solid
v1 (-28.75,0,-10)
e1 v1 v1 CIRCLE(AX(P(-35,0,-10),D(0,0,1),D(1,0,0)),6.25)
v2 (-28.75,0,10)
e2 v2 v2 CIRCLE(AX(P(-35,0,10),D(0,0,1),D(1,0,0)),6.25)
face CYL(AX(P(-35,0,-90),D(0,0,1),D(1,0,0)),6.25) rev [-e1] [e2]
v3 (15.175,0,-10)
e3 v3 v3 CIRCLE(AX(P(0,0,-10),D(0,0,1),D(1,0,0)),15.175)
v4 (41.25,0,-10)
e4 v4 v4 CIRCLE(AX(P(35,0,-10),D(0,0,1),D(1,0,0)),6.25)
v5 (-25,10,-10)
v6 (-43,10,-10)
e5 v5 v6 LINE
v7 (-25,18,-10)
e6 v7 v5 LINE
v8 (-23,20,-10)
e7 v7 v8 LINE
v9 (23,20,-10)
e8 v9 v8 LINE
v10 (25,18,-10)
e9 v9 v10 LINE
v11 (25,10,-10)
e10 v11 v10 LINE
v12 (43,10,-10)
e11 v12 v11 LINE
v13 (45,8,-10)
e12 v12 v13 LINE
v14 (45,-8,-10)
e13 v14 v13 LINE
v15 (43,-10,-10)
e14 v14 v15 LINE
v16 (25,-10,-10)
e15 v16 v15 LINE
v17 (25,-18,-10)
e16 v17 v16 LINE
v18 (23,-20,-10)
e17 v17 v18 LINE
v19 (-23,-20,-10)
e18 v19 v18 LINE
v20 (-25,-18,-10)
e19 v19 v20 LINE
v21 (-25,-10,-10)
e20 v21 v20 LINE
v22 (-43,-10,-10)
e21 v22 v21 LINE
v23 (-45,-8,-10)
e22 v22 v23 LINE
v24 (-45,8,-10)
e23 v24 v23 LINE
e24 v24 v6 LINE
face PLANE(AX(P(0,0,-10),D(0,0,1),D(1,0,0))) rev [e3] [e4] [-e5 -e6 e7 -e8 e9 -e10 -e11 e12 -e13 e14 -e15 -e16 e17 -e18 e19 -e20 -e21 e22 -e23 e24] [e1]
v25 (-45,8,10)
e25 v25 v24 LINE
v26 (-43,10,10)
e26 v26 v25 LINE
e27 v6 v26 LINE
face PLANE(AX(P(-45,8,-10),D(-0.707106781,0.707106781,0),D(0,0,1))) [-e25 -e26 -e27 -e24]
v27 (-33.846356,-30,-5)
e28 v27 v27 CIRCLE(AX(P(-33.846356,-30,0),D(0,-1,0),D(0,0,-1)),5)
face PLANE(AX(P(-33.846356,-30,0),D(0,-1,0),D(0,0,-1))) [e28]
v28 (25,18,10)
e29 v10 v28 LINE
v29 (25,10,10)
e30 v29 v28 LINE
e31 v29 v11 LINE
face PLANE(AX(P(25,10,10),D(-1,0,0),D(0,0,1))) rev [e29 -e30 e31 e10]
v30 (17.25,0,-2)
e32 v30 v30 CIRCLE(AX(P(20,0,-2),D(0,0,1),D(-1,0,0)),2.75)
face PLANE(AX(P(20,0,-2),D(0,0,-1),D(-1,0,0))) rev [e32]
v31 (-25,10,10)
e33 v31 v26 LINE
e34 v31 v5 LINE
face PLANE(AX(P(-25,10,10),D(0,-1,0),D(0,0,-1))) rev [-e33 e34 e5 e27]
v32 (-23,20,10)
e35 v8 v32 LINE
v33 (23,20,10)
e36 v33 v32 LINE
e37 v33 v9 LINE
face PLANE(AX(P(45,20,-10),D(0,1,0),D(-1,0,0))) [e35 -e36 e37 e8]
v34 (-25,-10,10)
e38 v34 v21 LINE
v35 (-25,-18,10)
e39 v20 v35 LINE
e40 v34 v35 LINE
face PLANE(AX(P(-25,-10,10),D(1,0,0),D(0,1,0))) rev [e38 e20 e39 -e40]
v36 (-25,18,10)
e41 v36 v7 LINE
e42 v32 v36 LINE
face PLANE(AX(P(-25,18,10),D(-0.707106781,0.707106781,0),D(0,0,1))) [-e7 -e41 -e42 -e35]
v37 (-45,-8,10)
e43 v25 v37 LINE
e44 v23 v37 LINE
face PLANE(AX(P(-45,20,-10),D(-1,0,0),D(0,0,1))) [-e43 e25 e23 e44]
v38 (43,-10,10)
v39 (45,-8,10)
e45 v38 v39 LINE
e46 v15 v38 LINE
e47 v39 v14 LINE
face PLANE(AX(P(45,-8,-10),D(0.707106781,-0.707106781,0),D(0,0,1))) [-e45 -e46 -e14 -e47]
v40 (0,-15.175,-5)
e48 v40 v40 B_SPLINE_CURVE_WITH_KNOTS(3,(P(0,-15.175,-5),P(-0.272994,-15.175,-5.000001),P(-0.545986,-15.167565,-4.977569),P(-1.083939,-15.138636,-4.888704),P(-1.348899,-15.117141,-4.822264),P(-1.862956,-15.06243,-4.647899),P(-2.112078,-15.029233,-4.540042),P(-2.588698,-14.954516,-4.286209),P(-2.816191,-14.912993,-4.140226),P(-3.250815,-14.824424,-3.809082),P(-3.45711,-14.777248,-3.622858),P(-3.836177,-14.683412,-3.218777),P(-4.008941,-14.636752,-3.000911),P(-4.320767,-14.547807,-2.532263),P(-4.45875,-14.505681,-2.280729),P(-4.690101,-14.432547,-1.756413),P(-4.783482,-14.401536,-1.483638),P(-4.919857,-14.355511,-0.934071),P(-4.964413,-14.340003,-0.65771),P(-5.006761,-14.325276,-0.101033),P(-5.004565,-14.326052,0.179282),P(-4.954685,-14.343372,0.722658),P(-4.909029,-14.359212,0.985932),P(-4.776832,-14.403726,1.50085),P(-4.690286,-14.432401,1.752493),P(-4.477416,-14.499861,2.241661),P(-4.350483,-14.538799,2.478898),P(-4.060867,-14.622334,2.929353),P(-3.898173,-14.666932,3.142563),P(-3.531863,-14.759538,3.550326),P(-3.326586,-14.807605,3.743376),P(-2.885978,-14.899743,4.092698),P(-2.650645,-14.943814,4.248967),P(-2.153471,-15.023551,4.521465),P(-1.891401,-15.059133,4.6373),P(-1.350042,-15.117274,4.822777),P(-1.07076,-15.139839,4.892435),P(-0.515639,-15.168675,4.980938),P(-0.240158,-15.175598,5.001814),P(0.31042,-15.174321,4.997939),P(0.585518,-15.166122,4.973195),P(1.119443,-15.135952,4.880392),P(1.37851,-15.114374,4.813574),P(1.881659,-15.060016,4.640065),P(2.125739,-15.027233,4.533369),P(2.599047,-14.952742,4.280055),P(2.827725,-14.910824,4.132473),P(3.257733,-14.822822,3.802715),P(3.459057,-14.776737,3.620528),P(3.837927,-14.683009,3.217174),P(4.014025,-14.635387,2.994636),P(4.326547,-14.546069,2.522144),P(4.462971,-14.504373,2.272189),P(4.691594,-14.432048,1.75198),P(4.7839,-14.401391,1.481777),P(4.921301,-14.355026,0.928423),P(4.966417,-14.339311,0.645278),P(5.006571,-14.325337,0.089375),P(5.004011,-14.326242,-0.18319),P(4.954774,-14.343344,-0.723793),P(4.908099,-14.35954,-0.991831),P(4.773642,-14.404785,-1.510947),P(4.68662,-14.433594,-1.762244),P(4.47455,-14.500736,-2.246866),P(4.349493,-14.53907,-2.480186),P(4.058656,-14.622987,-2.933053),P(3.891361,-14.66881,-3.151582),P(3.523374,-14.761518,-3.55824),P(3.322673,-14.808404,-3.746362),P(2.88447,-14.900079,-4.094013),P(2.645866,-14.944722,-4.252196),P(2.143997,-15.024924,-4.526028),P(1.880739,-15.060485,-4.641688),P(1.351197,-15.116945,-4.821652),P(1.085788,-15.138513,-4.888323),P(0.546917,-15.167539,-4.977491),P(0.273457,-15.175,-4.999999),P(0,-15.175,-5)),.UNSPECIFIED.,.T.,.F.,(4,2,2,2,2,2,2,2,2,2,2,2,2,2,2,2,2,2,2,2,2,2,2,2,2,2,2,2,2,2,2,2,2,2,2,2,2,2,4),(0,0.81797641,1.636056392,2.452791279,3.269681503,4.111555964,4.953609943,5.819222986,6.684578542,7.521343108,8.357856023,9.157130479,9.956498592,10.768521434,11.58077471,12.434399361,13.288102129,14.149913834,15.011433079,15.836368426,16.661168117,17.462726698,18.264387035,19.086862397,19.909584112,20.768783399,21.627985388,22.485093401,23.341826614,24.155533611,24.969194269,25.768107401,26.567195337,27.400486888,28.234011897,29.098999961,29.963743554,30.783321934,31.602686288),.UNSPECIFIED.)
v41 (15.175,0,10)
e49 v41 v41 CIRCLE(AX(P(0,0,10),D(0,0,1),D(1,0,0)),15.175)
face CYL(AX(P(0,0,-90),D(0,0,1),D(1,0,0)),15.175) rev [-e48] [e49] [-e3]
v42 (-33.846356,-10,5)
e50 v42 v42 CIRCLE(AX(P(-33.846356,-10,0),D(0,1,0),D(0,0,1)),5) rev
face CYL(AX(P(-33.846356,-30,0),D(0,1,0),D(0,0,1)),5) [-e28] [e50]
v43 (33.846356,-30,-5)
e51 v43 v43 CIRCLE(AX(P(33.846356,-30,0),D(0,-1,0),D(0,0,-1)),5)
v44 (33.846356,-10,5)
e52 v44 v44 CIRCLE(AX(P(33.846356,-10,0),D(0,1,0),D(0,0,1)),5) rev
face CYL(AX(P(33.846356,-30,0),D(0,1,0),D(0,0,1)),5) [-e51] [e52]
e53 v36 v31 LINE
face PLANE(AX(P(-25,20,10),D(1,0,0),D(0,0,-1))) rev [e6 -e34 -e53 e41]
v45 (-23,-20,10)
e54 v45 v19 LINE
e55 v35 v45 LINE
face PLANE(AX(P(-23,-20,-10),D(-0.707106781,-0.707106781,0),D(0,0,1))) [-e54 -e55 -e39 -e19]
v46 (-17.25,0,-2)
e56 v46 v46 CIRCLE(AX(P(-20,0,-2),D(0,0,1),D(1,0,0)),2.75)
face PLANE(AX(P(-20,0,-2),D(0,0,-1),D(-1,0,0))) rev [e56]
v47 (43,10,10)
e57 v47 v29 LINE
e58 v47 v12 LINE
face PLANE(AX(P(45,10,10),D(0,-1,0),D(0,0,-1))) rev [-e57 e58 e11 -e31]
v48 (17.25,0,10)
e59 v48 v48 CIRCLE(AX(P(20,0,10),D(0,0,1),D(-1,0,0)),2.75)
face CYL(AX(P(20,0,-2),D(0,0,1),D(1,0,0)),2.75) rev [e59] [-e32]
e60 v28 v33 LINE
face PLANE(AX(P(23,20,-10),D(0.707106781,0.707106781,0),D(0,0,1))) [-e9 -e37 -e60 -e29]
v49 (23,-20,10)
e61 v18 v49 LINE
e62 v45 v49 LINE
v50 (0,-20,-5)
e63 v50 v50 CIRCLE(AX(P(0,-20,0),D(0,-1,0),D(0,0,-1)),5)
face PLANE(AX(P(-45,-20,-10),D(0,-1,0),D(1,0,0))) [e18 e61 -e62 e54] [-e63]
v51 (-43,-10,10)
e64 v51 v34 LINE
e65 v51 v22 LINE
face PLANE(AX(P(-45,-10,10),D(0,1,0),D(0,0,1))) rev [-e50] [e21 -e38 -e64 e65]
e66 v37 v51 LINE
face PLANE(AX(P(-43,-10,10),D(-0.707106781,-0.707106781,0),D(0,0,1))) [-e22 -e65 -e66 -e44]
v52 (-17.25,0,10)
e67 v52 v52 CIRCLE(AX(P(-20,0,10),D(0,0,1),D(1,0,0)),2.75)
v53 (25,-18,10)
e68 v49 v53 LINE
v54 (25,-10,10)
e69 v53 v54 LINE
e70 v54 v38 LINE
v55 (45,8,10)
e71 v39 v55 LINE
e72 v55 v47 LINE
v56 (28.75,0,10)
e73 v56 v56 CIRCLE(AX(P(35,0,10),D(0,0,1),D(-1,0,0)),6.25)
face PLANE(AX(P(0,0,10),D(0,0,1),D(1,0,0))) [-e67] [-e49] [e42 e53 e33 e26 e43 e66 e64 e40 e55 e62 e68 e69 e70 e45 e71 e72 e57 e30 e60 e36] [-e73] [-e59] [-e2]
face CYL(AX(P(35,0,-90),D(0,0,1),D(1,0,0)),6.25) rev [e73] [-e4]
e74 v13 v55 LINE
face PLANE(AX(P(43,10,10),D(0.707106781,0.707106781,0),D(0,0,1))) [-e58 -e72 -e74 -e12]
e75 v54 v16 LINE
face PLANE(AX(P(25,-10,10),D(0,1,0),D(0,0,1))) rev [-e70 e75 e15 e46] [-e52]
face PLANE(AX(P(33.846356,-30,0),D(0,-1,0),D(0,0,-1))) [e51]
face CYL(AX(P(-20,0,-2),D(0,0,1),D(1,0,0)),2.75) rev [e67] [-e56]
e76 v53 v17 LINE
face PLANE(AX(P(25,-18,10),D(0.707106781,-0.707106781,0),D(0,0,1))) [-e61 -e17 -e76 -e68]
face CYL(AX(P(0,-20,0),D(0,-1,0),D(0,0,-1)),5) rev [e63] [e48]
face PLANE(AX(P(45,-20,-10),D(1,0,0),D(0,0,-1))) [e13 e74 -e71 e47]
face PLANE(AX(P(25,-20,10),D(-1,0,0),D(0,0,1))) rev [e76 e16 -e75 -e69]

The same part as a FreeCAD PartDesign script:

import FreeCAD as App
import Part
import Sketcher

V = App.Vector


def edges_at(feature, points):
    """Names of the edges that pass closest to the given points."""
    edges = feature.Shape.Edges
    near = lambda p: min(range(len(edges)), key=lambda i: edges[i].distToShape(Part.Vertex(*p))[0])
    return sorted({f"Edge{near(p) + 1}" for p in points})

doc = App.newDocument("Part")
body = doc.addObject("PartDesign::Body", "Body")

sketch1 = body.newObject("Sketcher::SketchObject", "Sketch")
sketch1.AttachmentSupport = (doc.getObject("XY_Plane"), [""])
sketch1.MapMode = "FlatFace"
sketch1.AttachmentOffset = App.Placement(V(0, 0, 10), App.Rotation())
sketch1.addGeometry([
    Part.LineSegment(V(-45, 20, 0), V(-45, -20, 0)),
    Part.LineSegment(V(-45, -20, 0), V(45, -20, 0)),
    Part.LineSegment(V(45, -20, 0), V(45, 20, 0)),
    Part.LineSegment(V(45, 20, 0), V(-45, 20, 0)),
], False)
sketch1.addConstraint([
    Sketcher.Constraint("Coincident", 0, 2, 1, 1),
    Sketcher.Constraint("Coincident", 1, 2, 2, 1),
    Sketcher.Constraint("Coincident", 2, 2, 3, 1),
    Sketcher.Constraint("Coincident", 3, 2, 0, 1),
    Sketcher.Constraint("Vertical", 0),
    Sketcher.Constraint("Horizontal", 1),
    Sketcher.Constraint("Vertical", 2),
    Sketcher.Constraint("Horizontal", 3),
    Sketcher.Constraint("Symmetric", 0, 2, 2, 2, -1, 1),
    Sketcher.Constraint("DistanceX", 1, 1, 1, 2, 90.0),
    Sketcher.Constraint("DistanceY", 0, 2, 0, 1, 40.0),
])
pad1 = body.newObject("PartDesign::Pad", "Pad")
pad1.Profile = sketch1
pad1.Length = 20
pad1.Reversed = True

sketch2 = body.newObject("Sketcher::SketchObject", "Sketch001")
sketch2.AttachmentSupport = (doc.getObject("XY_Plane"), [""])
sketch2.MapMode = "FlatFace"
sketch2.AttachmentOffset = App.Placement(V(0, 0, -10), App.Rotation())
sketch2.addGeometry([
    Part.LineSegment(V(-25, 20, 0), V(-25, 10, 0)),
    Part.LineSegment(V(-25, 10, 0), V(-45, 10, 0)),
    Part.LineSegment(V(-45, 10, 0), V(-45, 20, 0)),
    Part.LineSegment(V(-45, 20, 0), V(-25, 20, 0)),
], False)
sketch2.addConstraint([
    Sketcher.Constraint("Coincident", 0, 2, 1, 1),
    Sketcher.Constraint("Coincident", 1, 2, 2, 1),
    Sketcher.Constraint("Coincident", 2, 2, 3, 1),
    Sketcher.Constraint("Coincident", 3, 2, 0, 1),
    Sketcher.Constraint("Vertical", 0),
    Sketcher.Constraint("Horizontal", 1),
    Sketcher.Constraint("Vertical", 2),
    Sketcher.Constraint("Horizontal", 3),
    Sketcher.Constraint("DistanceX", 1, 2, 1, 1, 20.0),
    Sketcher.Constraint("DistanceY", 0, 2, 0, 1, 10.0),
    Sketcher.Constraint("DistanceX", 0, 2, -1, 1, 25.0),
    Sketcher.Constraint("DistanceY", -1, 1, 0, 2, 10.0),
])
pocket1 = body.newObject("PartDesign::Pocket", "Pocket")
pocket1.Profile = sketch2
pocket1.Type = "ThroughAll"
pocket1.Reversed = True

sketch3 = body.newObject("Sketcher::SketchObject", "Sketch002")
sketch3.AttachmentSupport = (doc.getObject("XY_Plane"), [""])
sketch3.MapMode = "FlatFace"
sketch3.AttachmentOffset = App.Placement(V(0, 0, -10), App.Rotation())
sketch3.addGeometry([
    Part.LineSegment(V(-25, -10, 0), V(-25, -20, 0)),
    Part.LineSegment(V(-25, -20, 0), V(-45, -20, 0)),
    Part.LineSegment(V(-45, -20, 0), V(-45, -10, 0)),
    Part.LineSegment(V(-45, -10, 0), V(-25, -10, 0)),
], False)
sketch3.addConstraint([
    Sketcher.Constraint("Coincident", 0, 2, 1, 1),
    Sketcher.Constraint("Coincident", 1, 2, 2, 1),
    Sketcher.Constraint("Coincident", 2, 2, 3, 1),
    Sketcher.Constraint("Coincident", 3, 2, 0, 1),
    Sketcher.Constraint("Vertical", 0),
    Sketcher.Constraint("Horizontal", 1),
    Sketcher.Constraint("Vertical", 2),
    Sketcher.Constraint("Horizontal", 3),
    Sketcher.Constraint("DistanceX", 1, 2, 1, 1, 20.0),
    Sketcher.Constraint("DistanceY", 0, 2, 0, 1, 10.0),
    Sketcher.Constraint("DistanceX", 0, 2, -1, 1, 25.0),
    Sketcher.Constraint("DistanceY", 0, 2, -1, 1, 20.0),
])
pocket2 = body.newObject("PartDesign::Pocket", "Pocket001")
pocket2.Profile = sketch3
pocket2.Type = "ThroughAll"
pocket2.Reversed = True

sketch4 = body.newObject("Sketcher::SketchObject", "Sketch003")
sketch4.AttachmentSupport = (doc.getObject("XY_Plane"), [""])
sketch4.MapMode = "FlatFace"
sketch4.AttachmentOffset = App.Placement(V(0, 0, -10), App.Rotation())
sketch4.addGeometry([
    Part.LineSegment(V(45, -10, 0), V(45, -20, 0)),
    Part.LineSegment(V(45, -20, 0), V(25, -20, 0)),
    Part.LineSegment(V(25, -20, 0), V(25, -10, 0)),
    Part.LineSegment(V(25, -10, 0), V(45, -10, 0)),
], False)
sketch4.addConstraint([
    Sketcher.Constraint("Coincident", 0, 2, 1, 1),
    Sketcher.Constraint("Coincident", 1, 2, 2, 1),
    Sketcher.Constraint("Coincident", 2, 2, 3, 1),
    Sketcher.Constraint("Coincident", 3, 2, 0, 1),
    Sketcher.Constraint("Vertical", 0),
    Sketcher.Constraint("Horizontal", 1),
    Sketcher.Constraint("Vertical", 2),
    Sketcher.Constraint("Horizontal", 3),
    Sketcher.Constraint("DistanceX", 1, 2, 1, 1, 20.0),
    Sketcher.Constraint("DistanceY", 0, 2, 0, 1, 10.0),
    Sketcher.Constraint("DistanceX", -1, 1, 0, 2, 45.0),
    Sketcher.Constraint("DistanceY", 0, 2, -1, 1, 20.0),
])
pocket3 = body.newObject("PartDesign::Pocket", "Pocket002")
pocket3.Profile = sketch4
pocket3.Type = "ThroughAll"
pocket3.Reversed = True

sketch5 = body.newObject("Sketcher::SketchObject", "Sketch004")
sketch5.AttachmentSupport = (doc.getObject("XY_Plane"), [""])
sketch5.MapMode = "FlatFace"
sketch5.AttachmentOffset = App.Placement(V(0, 0, -10), App.Rotation())
sketch5.addGeometry([
    Part.LineSegment(V(45, 20, 0), V(45, 10, 0)),
    Part.LineSegment(V(45, 10, 0), V(25, 10, 0)),
    Part.LineSegment(V(25, 10, 0), V(25, 20, 0)),
    Part.LineSegment(V(25, 20, 0), V(45, 20, 0)),
], False)
sketch5.addConstraint([
    Sketcher.Constraint("Coincident", 0, 2, 1, 1),
    Sketcher.Constraint("Coincident", 1, 2, 2, 1),
    Sketcher.Constraint("Coincident", 2, 2, 3, 1),
    Sketcher.Constraint("Coincident", 3, 2, 0, 1),
    Sketcher.Constraint("Vertical", 0),
    Sketcher.Constraint("Horizontal", 1),
    Sketcher.Constraint("Vertical", 2),
    Sketcher.Constraint("Horizontal", 3),
    Sketcher.Constraint("DistanceX", 1, 2, 1, 1, 20.0),
    Sketcher.Constraint("DistanceY", 0, 2, 0, 1, 10.0),
    Sketcher.Constraint("DistanceX", -1, 1, 0, 2, 45.0),
    Sketcher.Constraint("DistanceY", -1, 1, 0, 2, 10.0),
])
pocket4 = body.newObject("PartDesign::Pocket", "Pocket003")
pocket4.Profile = sketch5
pocket4.Type = "ThroughAll"
pocket4.Reversed = True

sketch6 = body.newObject("Sketcher::SketchObject", "Sketch005")
sketch6.AttachmentSupport = (doc.getObject("XY_Plane"), [""])
sketch6.MapMode = "FlatFace"
sketch6.AttachmentOffset = App.Placement(V(0, 0, 10), App.Rotation())
sketch6.addGeometry([
    Part.Circle(V(20, 0, 0), V(0, 0, 1), 2.5),
    Part.Circle(V(-20, 0, 0), V(0, 0, 1), 2.5),
], False)
sketch6.addConstraint([
    Sketcher.Constraint("Equal", 0, 1),
    Sketcher.Constraint("Symmetric", 0, 3, 1, 3, -1, 1),
    Sketcher.Constraint("PointOnObject", 0, 3, -1),
    Sketcher.Constraint("Diameter", 0, 5.0),
    Sketcher.Constraint("DistanceX", -1, 1, 0, 3, 20.0),
])
doc.recompute()
hole = body.newObject("PartDesign::Hole", "Hole")
hole.Profile = sketch6
hole.ThreadType = "None"
hole.Diameter = 5
hole.DepthType = "Dimension"
hole.Depth = 12
hole.DrillPoint = "Flat"

sketch7 = body.newObject("Sketcher::SketchObject", "Sketch006")
sketch7.AttachmentSupport = (doc.getObject("XY_Plane"), [""])
sketch7.MapMode = "FlatFace"
sketch7.AttachmentOffset = App.Placement(V(0, 0, 10), App.Rotation())
sketch7.addGeometry(Part.Circle(V(0, 0, 0), V(0, 0, 1), 15), False)
sketch7.addConstraint([
    Sketcher.Constraint("Coincident", 0, 3, -1, 1),
    Sketcher.Constraint("Diameter", 0, 29.849193),
])
doc.recompute()
hole2 = body.newObject("PartDesign::Hole", "Hole001")
hole2.Profile = sketch7
hole2.ThreadType = "None"
hole2.Diameter = 29.849193
hole2.DepthType = "ThroughAll"

sketch8 = body.newObject("Sketcher::SketchObject", "Sketch007")
sketch8.AttachmentSupport = (doc.getObject("XZ_Plane"), [""])
sketch8.MapMode = "FlatFace"
sketch8.AttachmentOffset = App.Placement(V(0, 0, 20), App.Rotation())
sketch8.addGeometry(Part.Circle(V(0, 0, 0), V(0, 0, 1), 5), False)
sketch8.addConstraint([
    Sketcher.Constraint("Coincident", 0, 3, -1, 1),
    Sketcher.Constraint("Diameter", 0, 10.0),
])
pocket5 = body.newObject("PartDesign::Pocket", "Pocket004")
pocket5.Profile = sketch8
pocket5.Length = 5.937867

sketch9 = body.newObject("Sketcher::SketchObject", "Sketch008")
sketch9.AttachmentSupport = (doc.getObject("XY_Plane"), [""])
sketch9.MapMode = "FlatFace"
sketch9.AttachmentOffset = App.Placement(V(0, 0, -10), App.Rotation())
sketch9.addGeometry([
    Part.Circle(V(-35, 0, 0), V(0, 0, 1), 6),
    Part.Circle(V(35, 0, 0), V(0, 0, 1), 6),
], False)
sketch9.addConstraint([
    Sketcher.Constraint("Equal", 0, 1),
    Sketcher.Constraint("Symmetric", 0, 3, 1, 3, -1, 1),
    Sketcher.Constraint("PointOnObject", 0, 3, -1),
    Sketcher.Constraint("Diameter", 0, 12.0),
    Sketcher.Constraint("DistanceX", 0, 3, -1, 1, 35.0),
])
doc.recompute()
hole3 = body.newObject("PartDesign::Hole", "Hole002")
hole3.Profile = sketch9
hole3.ThreadType = "None"
hole3.Diameter = 12
hole3.DepthType = "ThroughAll"
hole3.Reversed = True
doc.recompute()

chamfer = body.newObject("PartDesign::Chamfer", "Chamfer")
chamfer.Base = (hole3, edges_at(hole3, [
    (-25, 20, 0),
    (-45, 10, 0),
    (-45, -10, 0),
    (-25, -20, 0),
    (25, -20, 0),
    (45, -10, 0),
    (45, 10, 0),
    (25, 20, 0),
]))
chamfer.Size = 2

sketch10 = body.newObject("Sketcher::SketchObject", "Sketch009")
sketch10.AttachmentSupport = (doc.getObject("XY_Plane"), [""])
sketch10.MapMode = "FlatFace"
sketch10.AttachmentOffset = App.Placement(V(0, 0, 10), App.Rotation())
sketch10.addGeometry([
    Part.Circle(V(-35, 0, 0), V(0, 0, 1), 6),
    Part.Circle(V(35, 0, 0), V(0, 0, 1), 6),
], False)
sketch10.addConstraint([
    Sketcher.Constraint("Equal", 0, 1),
    Sketcher.Constraint("Symmetric", 0, 3, 1, 3, -1, 1),
    Sketcher.Constraint("PointOnObject", 0, 3, -1),
    Sketcher.Constraint("Diameter", 0, 12.5),
    Sketcher.Constraint("DistanceX", 0, 3, -1, 1, 35.0),
])
pocket6 = body.newObject("PartDesign::Pocket", "Pocket005")
pocket6.Profile = sketch10
pocket6.Length = 100

sketch11 = body.newObject("Sketcher::SketchObject", "Sketch010")
sketch11.AttachmentSupport = (doc.getObject("XY_Plane"), [""])
sketch11.MapMode = "FlatFace"
sketch11.AttachmentOffset = App.Placement(V(0, 0, 10), App.Rotation())
sketch11.addGeometry(Part.Circle(V(0, 0, 0), V(0, 0, 1), 15), False)
sketch11.addConstraint([
    Sketcher.Constraint("Coincident", 0, 3, -1, 1),
    Sketcher.Constraint("Diameter", 0, 30.35),
])
pocket7 = body.newObject("PartDesign::Pocket", "Pocket006")
pocket7.Profile = sketch11
pocket7.Length = 100

sketch12 = body.newObject("Sketcher::SketchObject", "Sketch011")
sketch12.AttachmentSupport = (doc.getObject("XY_Plane"), [""])
sketch12.MapMode = "FlatFace"
sketch12.AttachmentOffset = App.Placement(V(0, 0, 10), App.Rotation())
sketch12.addGeometry([
    Part.Circle(V(-20, 0, 0), V(0, 0, 1), 2.8),
    Part.Circle(V(20, 0, 0), V(0, 0, 1), 2.8),
], False)
sketch12.addConstraint([
    Sketcher.Constraint("Equal", 0, 1),
    Sketcher.Constraint("Symmetric", 0, 3, 1, 3, -1, 1),
    Sketcher.Constraint("PointOnObject", 0, 3, -1),
    Sketcher.Constraint("Diameter", 0, 5.5),
    Sketcher.Constraint("DistanceX", 0, 3, -1, 1, 20.0),
])
pocket8 = body.newObject("PartDesign::Pocket", "Pocket007")
pocket8.Profile = sketch12
pocket8.Length = 12

sketch13 = body.newObject("Sketcher::SketchObject", "Sketch012")
sketch13.AttachmentSupport = (doc.getObject("XZ_Plane"), [""])
sketch13.MapMode = "FlatFace"
sketch13.AttachmentOffset = App.Placement(V(0, 0, 10), App.Rotation())
sketch13.addGeometry([
    Part.Circle(V(-34, 0, 0), V(0, 0, 1), 5),
    Part.Circle(V(34, 0, 0), V(0, 0, 1), 5),
], False)
sketch13.addConstraint([
    Sketcher.Constraint("Equal", 0, 1),
    Sketcher.Constraint("Symmetric", 0, 3, 1, 3, -1, 1),
    Sketcher.Constraint("PointOnObject", 0, 3, -1),
    Sketcher.Constraint("Diameter", 0, 10.0),
    Sketcher.Constraint("DistanceX", 0, 3, -1, 1, 33.846356),
])
pad2 = body.newObject("PartDesign::Pad", "Pad001")
pad2.Profile = sketch13
pad2.Length = 20

doc.recompute()
